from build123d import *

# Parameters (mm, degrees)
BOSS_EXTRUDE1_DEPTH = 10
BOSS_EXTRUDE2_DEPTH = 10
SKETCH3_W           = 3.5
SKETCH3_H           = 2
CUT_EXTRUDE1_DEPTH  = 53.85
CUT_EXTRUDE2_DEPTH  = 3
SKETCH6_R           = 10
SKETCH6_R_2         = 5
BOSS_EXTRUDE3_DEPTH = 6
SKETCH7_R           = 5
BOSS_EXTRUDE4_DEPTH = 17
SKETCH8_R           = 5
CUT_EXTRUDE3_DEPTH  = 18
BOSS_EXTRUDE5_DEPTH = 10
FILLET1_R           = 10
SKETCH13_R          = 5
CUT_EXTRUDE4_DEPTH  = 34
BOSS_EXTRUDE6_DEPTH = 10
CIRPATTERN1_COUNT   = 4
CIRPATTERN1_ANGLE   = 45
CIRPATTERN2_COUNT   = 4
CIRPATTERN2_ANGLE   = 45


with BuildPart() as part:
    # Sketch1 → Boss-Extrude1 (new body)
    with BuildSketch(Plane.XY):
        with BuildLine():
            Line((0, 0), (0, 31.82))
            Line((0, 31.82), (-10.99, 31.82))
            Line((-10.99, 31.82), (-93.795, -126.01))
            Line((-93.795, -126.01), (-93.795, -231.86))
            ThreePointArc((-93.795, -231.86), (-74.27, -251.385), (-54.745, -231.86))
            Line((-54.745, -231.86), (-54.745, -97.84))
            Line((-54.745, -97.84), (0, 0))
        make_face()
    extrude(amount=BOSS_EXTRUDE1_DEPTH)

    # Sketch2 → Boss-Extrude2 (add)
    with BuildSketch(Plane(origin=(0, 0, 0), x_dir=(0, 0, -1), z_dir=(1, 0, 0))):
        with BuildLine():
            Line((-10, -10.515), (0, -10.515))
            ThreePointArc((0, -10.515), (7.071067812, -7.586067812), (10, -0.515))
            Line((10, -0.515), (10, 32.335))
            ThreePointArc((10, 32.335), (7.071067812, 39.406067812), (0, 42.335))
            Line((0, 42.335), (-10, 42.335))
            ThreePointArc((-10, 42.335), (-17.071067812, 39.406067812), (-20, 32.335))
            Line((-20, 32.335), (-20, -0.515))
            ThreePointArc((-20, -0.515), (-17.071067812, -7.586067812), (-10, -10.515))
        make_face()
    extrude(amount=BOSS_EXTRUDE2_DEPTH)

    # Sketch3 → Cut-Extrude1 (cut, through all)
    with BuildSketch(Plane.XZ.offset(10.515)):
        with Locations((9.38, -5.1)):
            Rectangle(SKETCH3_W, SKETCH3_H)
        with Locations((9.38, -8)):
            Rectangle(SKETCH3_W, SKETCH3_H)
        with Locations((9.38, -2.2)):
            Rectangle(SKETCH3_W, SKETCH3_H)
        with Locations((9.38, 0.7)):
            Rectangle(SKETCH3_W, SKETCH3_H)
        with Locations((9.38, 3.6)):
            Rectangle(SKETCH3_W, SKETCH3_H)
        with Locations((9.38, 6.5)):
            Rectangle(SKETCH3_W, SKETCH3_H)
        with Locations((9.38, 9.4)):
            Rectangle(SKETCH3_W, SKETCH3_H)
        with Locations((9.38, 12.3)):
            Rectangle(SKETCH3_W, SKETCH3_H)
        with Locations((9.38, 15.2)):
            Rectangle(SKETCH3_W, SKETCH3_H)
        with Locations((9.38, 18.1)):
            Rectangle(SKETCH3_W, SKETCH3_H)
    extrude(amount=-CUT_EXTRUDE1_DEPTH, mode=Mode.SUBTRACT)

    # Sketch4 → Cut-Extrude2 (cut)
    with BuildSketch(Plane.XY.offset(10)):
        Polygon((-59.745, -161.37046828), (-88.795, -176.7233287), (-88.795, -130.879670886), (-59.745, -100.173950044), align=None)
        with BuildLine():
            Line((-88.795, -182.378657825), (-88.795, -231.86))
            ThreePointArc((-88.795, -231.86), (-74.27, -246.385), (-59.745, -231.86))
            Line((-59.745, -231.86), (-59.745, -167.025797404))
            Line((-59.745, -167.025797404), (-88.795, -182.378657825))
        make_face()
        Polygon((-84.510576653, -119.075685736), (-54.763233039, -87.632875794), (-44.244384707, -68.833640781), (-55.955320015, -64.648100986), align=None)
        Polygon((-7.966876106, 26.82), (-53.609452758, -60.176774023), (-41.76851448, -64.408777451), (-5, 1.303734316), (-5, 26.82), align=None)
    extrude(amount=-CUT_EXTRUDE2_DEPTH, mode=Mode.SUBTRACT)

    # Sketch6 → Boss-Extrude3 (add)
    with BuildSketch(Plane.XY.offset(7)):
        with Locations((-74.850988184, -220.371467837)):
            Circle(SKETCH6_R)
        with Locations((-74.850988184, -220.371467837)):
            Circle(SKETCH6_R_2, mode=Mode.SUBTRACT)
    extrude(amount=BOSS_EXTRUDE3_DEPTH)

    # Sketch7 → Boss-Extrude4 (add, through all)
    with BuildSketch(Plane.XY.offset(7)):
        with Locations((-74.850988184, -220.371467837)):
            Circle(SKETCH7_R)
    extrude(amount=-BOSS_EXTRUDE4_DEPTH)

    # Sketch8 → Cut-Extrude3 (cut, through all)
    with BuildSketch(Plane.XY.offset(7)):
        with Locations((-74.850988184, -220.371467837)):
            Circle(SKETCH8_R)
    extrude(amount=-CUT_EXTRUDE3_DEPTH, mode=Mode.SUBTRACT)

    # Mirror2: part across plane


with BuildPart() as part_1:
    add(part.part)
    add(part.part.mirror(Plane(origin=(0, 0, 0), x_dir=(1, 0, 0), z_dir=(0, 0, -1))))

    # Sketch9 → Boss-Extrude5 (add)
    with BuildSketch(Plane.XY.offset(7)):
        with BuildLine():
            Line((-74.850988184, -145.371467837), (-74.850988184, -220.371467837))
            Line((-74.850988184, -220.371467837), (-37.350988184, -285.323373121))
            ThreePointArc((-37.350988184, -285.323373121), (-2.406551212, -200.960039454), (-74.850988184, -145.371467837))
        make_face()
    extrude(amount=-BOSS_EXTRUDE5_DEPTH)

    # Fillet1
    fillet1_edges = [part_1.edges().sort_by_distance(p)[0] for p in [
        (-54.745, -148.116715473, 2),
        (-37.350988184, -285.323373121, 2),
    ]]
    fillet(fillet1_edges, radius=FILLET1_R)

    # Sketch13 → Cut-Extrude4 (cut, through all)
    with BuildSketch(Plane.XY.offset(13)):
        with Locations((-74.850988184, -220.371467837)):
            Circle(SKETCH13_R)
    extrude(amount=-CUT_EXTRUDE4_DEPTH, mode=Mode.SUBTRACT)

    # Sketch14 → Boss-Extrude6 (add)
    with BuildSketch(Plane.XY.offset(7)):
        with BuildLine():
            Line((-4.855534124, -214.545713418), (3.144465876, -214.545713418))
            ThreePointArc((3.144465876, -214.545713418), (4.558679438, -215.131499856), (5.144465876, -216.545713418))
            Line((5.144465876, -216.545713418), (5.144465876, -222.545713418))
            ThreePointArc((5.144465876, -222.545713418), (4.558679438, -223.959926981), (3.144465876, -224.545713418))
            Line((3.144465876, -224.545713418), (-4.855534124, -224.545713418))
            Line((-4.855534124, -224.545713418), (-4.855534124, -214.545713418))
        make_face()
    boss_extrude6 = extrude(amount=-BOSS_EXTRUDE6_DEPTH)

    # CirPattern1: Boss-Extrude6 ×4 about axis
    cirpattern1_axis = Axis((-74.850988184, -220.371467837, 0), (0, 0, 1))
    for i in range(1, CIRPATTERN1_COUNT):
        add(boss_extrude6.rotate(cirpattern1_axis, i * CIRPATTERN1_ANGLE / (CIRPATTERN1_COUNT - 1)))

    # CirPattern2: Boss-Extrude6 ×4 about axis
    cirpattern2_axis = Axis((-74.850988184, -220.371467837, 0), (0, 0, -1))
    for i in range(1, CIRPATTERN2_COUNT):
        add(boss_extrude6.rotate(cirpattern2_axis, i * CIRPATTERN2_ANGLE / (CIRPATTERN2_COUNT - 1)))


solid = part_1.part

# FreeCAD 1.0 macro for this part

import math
import FreeCAD as App
import Part
import Sketcher
Q = App.Units.Quantity


def edges_at(feature, points):
    """Names of the edges that pass closest to the given points."""
    edges = feature.Shape.Edges
    near = lambda p: min(range(len(edges)), key=lambda i: edges[i].distToShape(Part.Vertex(*p))[0])
    return sorted({f"Edge{near(p) + 1}" for p in points})


def add_polygon(sketch, points):
    """Adds a closed chain of lines whose ends are joined by coincident constraints."""
    first, n = sketch.GeometryCount, len(points)
    for a, b in zip(points, points[1:] + points[:1]):
        sketch.addGeometry(Part.LineSegment(App.Vector(*a, 0), App.Vector(*b, 0)), False)
    for i in range(n):
        sketch.addConstraint(Sketcher.Constraint("Coincident", first + i, 2, first + (i + 1) % n, 1))

doc = App.newDocument("Part")
body = doc.addObject("PartDesign::Body", "Body")

# Sketch on XY plane
sketch1 = body.newObject("Sketcher::SketchObject", "Sketch")
sketch1.AttachmentSupport = (doc.getObject("XY_Plane"), [""])
sketch1.MapMode = "FlatFace"
sketch1.addGeometry([
    Part.LineSegment(App.Vector(0, 0, 0), App.Vector(0, 32, 0)),  # 0
    Part.LineSegment(App.Vector(0, 32, 0), App.Vector(-11, 32, 0)),  # 1
    Part.LineSegment(App.Vector(-11, 32, 0), App.Vector(-94, -126, 0)),  # 2
    Part.LineSegment(App.Vector(-94, -126, 0), App.Vector(-94, -232, 0)),  # 3
    Part.ArcOfCircle(Part.Circle(App.Vector(-74, -232, 0), App.Vector(0, 0, 1), 20), math.radians(180), math.radians(360)),  # 4
    Part.LineSegment(App.Vector(-55, -232, 0), App.Vector(-55, -98, 0)),  # 5
    Part.LineSegment(App.Vector(-55, -98, 0), App.Vector(0, 0, 0)),  # 6
], False)
sketch1.addConstraint([
    Sketcher.Constraint("Coincident", 0, 2, 1, 1),
    Sketcher.Constraint("Coincident", 1, 2, 2, 1),
    Sketcher.Constraint("Coincident", 2, 2, 3, 1),
    Sketcher.Constraint("Tangent", 3, 2, 4, 1),
    Sketcher.Constraint("Tangent", 4, 2, 5, 1),
    Sketcher.Constraint("Coincident", 5, 2, 6, 1),
    Sketcher.Constraint("Coincident", 6, 2, 0, 1),
    Sketcher.Constraint("Vertical", 0),
    Sketcher.Constraint("Horizontal", 1),
    Sketcher.Constraint("Vertical", 3),
    Sketcher.Constraint("Vertical", 5),
    Sketcher.Constraint("Coincident", 6, 2, -1, 1),
    Sketcher.Constraint("Radius", 4, 19.525),
    Sketcher.Constraint("DistanceX", 1, 2, 1, 1, 10.99),
    Sketcher.Constraint("DistanceY", 0, 1, 0, 2, 31.82),
    Sketcher.Constraint("DistanceY", 3, 2, 3, 1, 105.85),
    Sketcher.Constraint("DistanceY", 5, 1, 5, 2, 134.02),
    Sketcher.Constraint("DistanceX", 4, 3, -1, 1, 74.27),
    Sketcher.Constraint("DistanceY", 4, 3, -1, 1, 231.86),
])
pad1 = body.newObject("PartDesign::Pad", "Pad")
pad1.Profile = sketch1
pad1.Length = 10

# Sketch on YZ plane
sketch2 = body.newObject("Sketcher::SketchObject", "Sketch001")
sketch2.AttachmentSupport = (doc.getObject("YZ_Plane"), [""])
sketch2.MapMode = "FlatFace"
sketch2.addGeometry([
    Part.LineSegment(App.Vector(-11, 10, 0), App.Vector(-11, 0, 0)),  # 0
    Part.ArcOfCircle(Part.Circle(App.Vector(-1, 0, 0), App.Vector(0, 0, 1), 10), math.radians(180), math.radians(270)),  # 1
    Part.LineSegment(App.Vector(-1, -10, 0), App.Vector(32, -10, 0)),  # 2
    Part.ArcOfCircle(Part.Circle(App.Vector(32, 0, 0), App.Vector(0, 0, 1), 10), math.radians(-90), math.radians(0)),  # 3
    Part.LineSegment(App.Vector(42, 0, 0), App.Vector(42, 10, 0)),  # 4
    Part.ArcOfCircle(Part.Circle(App.Vector(32, 10, 0), App.Vector(0, 0, 1), 10), math.radians(0), math.radians(90)),  # 5
    Part.LineSegment(App.Vector(32, 20, 0), App.Vector(-1, 20, 0)),  # 6
    Part.ArcOfCircle(Part.Circle(App.Vector(-1, 10, 0), App.Vector(0, 0, 1), 10), math.radians(90), math.radians(180)),  # 7
], False)
sketch2.addConstraint([
    Sketcher.Constraint("Tangent", 0, 2, 1, 1),
    Sketcher.Constraint("Tangent", 1, 2, 2, 1),
    Sketcher.Constraint("Tangent", 2, 2, 3, 1),
    Sketcher.Constraint("Tangent", 3, 2, 4, 1),
    Sketcher.Constraint("Tangent", 4, 2, 5, 1),
    Sketcher.Constraint("Tangent", 5, 2, 6, 1),
    Sketcher.Constraint("Tangent", 6, 2, 7, 1),
    Sketcher.Constraint("Tangent", 7, 2, 0, 1),
    Sketcher.Constraint("Vertical", 0),
    Sketcher.Constraint("Horizontal", 2),
    Sketcher.Constraint("Vertical", 4),
    Sketcher.Constraint("Horizontal", 6),
    Sketcher.Constraint("Equal", 1, 3),
    Sketcher.Constraint("Equal", 3, 5),
    Sketcher.Constraint("Equal", 5, 7),
    Sketcher.Constraint("PointOnObject", 1, 3, -1),
    Sketcher.Constraint("Radius", 1, 10.0),
    Sketcher.Constraint("DistanceY", 0, 2, 0, 1, 10.0),
    Sketcher.Constraint("DistanceX", 2, 1, 2, 2, 32.85),
    Sketcher.Constraint("DistanceX", 1, 3, -1, 1, 0.515),
])
pad2 = body.newObject("PartDesign::Pad", "Pad001")
pad2.Profile = sketch2
pad2.Length = 10

# Sketch on XZ plane
sketch3 = body.newObject("Sketcher::SketchObject", "Sketch002")
sketch3.AttachmentSupport = (doc.getObject("XZ_Plane"), [""])
sketch3.MapMode = "FlatFace"
sketch3.AttachmentOffset = App.Placement(App.Vector(0, 0, 10.515), App.Rotation())
add_polygon(sketch3, [(7.6, -4.1), (7.6, -6.1), (11.1, -6.1), (11.1, -4.1)])  # lines 0-3
add_polygon(sketch3, [(7.6, -7), (7.6, -9), (11.1, -9), (11.1, -7)])  # lines 4-7
add_polygon(sketch3, [(7.6, -1.2), (7.6, -3.2), (11.1, -3.2), (11.1, -1.2)])  # lines 8-11
add_polygon(sketch3, [(7.6, 1.7), (7.6, -0.3), (11.1, -0.3), (11.1, 1.7)])  # lines 12-15
add_polygon(sketch3, [(7.6, 4.6), (7.6, 2.6), (11.1, 2.6), (11.1, 4.6)])  # lines 16-19
add_polygon(sketch3, [(7.6, 7.5), (7.6, 5.5), (11.1, 5.5), (11.1, 7.5)])  # lines 20-23
add_polygon(sketch3, [(7.6, 10.4), (7.6, 8.4), (11.1, 8.4), (11.1, 10.4)])  # lines 24-27
add_polygon(sketch3, [(7.6, 13.3), (7.6, 11.3), (11.1, 11.3), (11.1, 13.3)])  # lines 28-31
add_polygon(sketch3, [(7.6, 16.2), (7.6, 14.2), (11.1, 14.2), (11.1, 16.2)])  # lines 32-35
add_polygon(sketch3, [(7.6, 19.1), (7.6, 17.1), (11.1, 17.1), (11.1, 19.1)])  # lines 36-39
sketch3.addConstraint([
    Sketcher.Constraint("Vertical", 0),
    Sketcher.Constraint("Horizontal", 1),
    Sketcher.Constraint("Vertical", 2),
    Sketcher.Constraint("Horizontal", 3),
    Sketcher.Constraint("Vertical", 4),
    Sketcher.Constraint("Horizontal", 5),
    Sketcher.Constraint("Vertical", 6),
    Sketcher.Constraint("Horizontal", 7),
    Sketcher.Constraint("Vertical", 8),
    Sketcher.Constraint("Horizontal", 9),
    Sketcher.Constraint("Vertical", 10),
    Sketcher.Constraint("Horizontal", 11),
    Sketcher.Constraint("Vertical", 12),
    Sketcher.Constraint("Horizontal", 13),
    Sketcher.Constraint("Vertical", 14),
    Sketcher.Constraint("Horizontal", 15),
    Sketcher.Constraint("Vertical", 16),
    Sketcher.Constraint("Horizontal", 17),
    Sketcher.Constraint("Vertical", 18),
    Sketcher.Constraint("Horizontal", 19),
    Sketcher.Constraint("Vertical", 20),
    Sketcher.Constraint("Horizontal", 21),
    Sketcher.Constraint("Vertical", 22),
    Sketcher.Constraint("Horizontal", 23),
    Sketcher.Constraint("Vertical", 24),
    Sketcher.Constraint("Horizontal", 25),
    Sketcher.Constraint("Vertical", 26),
    Sketcher.Constraint("Horizontal", 27),
    Sketcher.Constraint("Vertical", 28),
    Sketcher.Constraint("Horizontal", 29),
    Sketcher.Constraint("Vertical", 30),
    Sketcher.Constraint("Horizontal", 31),
    Sketcher.Constraint("Vertical", 32),
    Sketcher.Constraint("Horizontal", 33),
    Sketcher.Constraint("Vertical", 34),
    Sketcher.Constraint("Horizontal", 35),
    Sketcher.Constraint("Vertical", 36),
    Sketcher.Constraint("Horizontal", 37),
    Sketcher.Constraint("Vertical", 38),
    Sketcher.Constraint("Horizontal", 39),
    Sketcher.Constraint("Vertical", 3, 2, 4, 2),
    Sketcher.Constraint("Vertical", 2, 2, 5, 2),
    Sketcher.Constraint("Vertical", 7, 2, 8, 2),
    Sketcher.Constraint("Vertical", 6, 2, 9, 2),
    Sketcher.Constraint("Vertical", 11, 2, 12, 2),
    Sketcher.Constraint("Vertical", 10, 2, 13, 2),
    Sketcher.Constraint("Vertical", 15, 2, 16, 2),
    Sketcher.Constraint("Vertical", 14, 2, 17, 2),
    Sketcher.Constraint("Vertical", 19, 2, 20, 2),
    Sketcher.Constraint("Vertical", 18, 2, 21, 2),
    Sketcher.Constraint("Vertical", 23, 2, 24, 2),
    Sketcher.Constraint("Vertical", 22, 2, 25, 2),
    Sketcher.Constraint("Vertical", 27, 2, 28, 2),
    Sketcher.Constraint("Vertical", 26, 2, 29, 2),
    Sketcher.Constraint("Vertical", 31, 2, 32, 2),
    Sketcher.Constraint("Vertical", 30, 2, 33, 2),
    Sketcher.Constraint("Vertical", 35, 2, 36, 2),
    Sketcher.Constraint("Vertical", 34, 2, 37, 2),
    Sketcher.Constraint("Equal", 2, 4),
    Sketcher.Constraint("Equal", 6, 8),
    Sketcher.Constraint("Equal", 10, 12),
    Sketcher.Constraint("Equal", 14, 16),
    Sketcher.Constraint("Equal", 18, 20),
    Sketcher.Constraint("Equal", 22, 24),
    Sketcher.Constraint("Equal", 26, 28),
    Sketcher.Constraint("Equal", 30, 32),
    Sketcher.Constraint("Equal", 34, 36),
    Sketcher.Constraint("DistanceY", 0, 2, 0, 1, 2.0),
    Sketcher.Constraint("DistanceX", 1, 1, 1, 2, 3.5),
    Sketcher.Constraint("DistanceY", 4, 2, -1, 1, 9.0),
    Sketcher.Constraint("DistanceY", 0, 2, -1, 1, 6.1),
    Sketcher.Constraint("DistanceY", 8, 2, -1, 1, 3.2),
    Sketcher.Constraint("DistanceY", 12, 2, -1, 1, 0.3),
    Sketcher.Constraint("DistanceY", -1, 1, 16, 2, 2.6),
    Sketcher.Constraint("DistanceY", -1, 1, 20, 2, 5.5),
    Sketcher.Constraint("DistanceY", -1, 1, 24, 2, 8.4),
    Sketcher.Constraint("DistanceY", -1, 1, 28, 2, 11.3),
    Sketcher.Constraint("DistanceY", -1, 1, 32, 2, 14.2),
    Sketcher.Constraint("DistanceY", -1, 1, 36, 2, 17.1),
    Sketcher.Constraint("DistanceX", -1, 1, 0, 2, 7.63),
])
pocket1 = body.newObject("PartDesign::Pocket", "Pocket")
pocket1.Profile = sketch3
pocket1.Type = "ThroughAll"

# Sketch on XY plane
sketch4 = body.newObject("Sketcher::SketchObject", "Sketch003")
sketch4.AttachmentSupport = (doc.getObject("XY_Plane"), [""])
sketch4.MapMode = "FlatFace"
sketch4.AttachmentOffset = App.Placement(App.Vector(0, 0, 10), App.Rotation())
add_polygon(sketch4, [(-88.8, -176.7), (-59.7, -161.4), (-59.7, -100.2), (-88.8, -130.9)])  # lines 0-3
sketch4.addGeometry(Part.LineSegment(App.Vector(-88.8, -182.4, 0), App.Vector(-88.8, -231.9, 0)), False)  # 4
sketch4.addGeometry(Part.ArcOfCircle(Part.Circle(App.Vector(-74.3, -231.9, 0), App.Vector(0, 0, 1), 14.5), math.radians(180), math.radians(360)), False)  # 5
sketch4.addGeometry(Part.LineSegment(App.Vector(-59.7, -231.9, 0), App.Vector(-59.7, -167, 0)), False)  # 6
sketch4.addGeometry(Part.LineSegment(App.Vector(-59.7, -167, 0), App.Vector(-88.8, -182.4, 0)), False)  # 7
add_polygon(sketch4, [(-84.5, -119.1), (-54.8, -87.6), (-44.2, -68.8), (-56, -64.6)])  # lines 8-11
add_polygon(sketch4, [(-8, 26.8), (-53.6, -60.2), (-41.8, -64.4), (-5, 1.3), (-5, 26.8)])  # lines 12-16
sketch4.addConstraint([
    Sketcher.Constraint("Tangent", 4, 2, 5, 1),
    Sketcher.Constraint("Tangent", 5, 2, 6, 1),
    Sketcher.Constraint("Coincident", 6, 2, 7, 1),
    Sketcher.Constraint("Coincident", 7, 2, 4, 1),
    Sketcher.Constraint("Vertical", 1),
    Sketcher.Constraint("Vertical", 3),
    Sketcher.Constraint("Vertical", 4),
    Sketcher.Constraint("Vertical", 6),
    Sketcher.Constraint("Vertical", 15),
    Sketcher.Constraint("Horizontal", 16),
    Sketcher.Constraint("Parallel", 0, 7),
    Sketcher.Constraint("Parallel", 2, 8),
    Sketcher.Constraint("Parallel", 11, 12),
    Sketcher.Constraint("Parallel", 10, 13),
    Sketcher.Constraint("Parallel", 9, 14),
    Sketcher.Constraint("Vertical", 3, 2, 4, 2),
    Sketcher.Constraint("Vertical", 1, 2, 5, 2),
    Sketcher.Constraint("DistanceX", 14, 2, -1, 1, 5.0),
    Sketcher.Constraint("Radius", 5, 14.525),
    Sketcher.Constraint("DistanceX", 5, 3, -1, 1, 74.27),
    Sketcher.Constraint("DistanceY", 5, 3, -1, 1, 231.86),
    Sketcher.Constraint("DistanceY", -1, 1, 15, 2, 26.82),
    Sketcher.Constraint("DistanceY", 1, 1, 1, 2, 61.196518),
    Sketcher.Constraint("DistanceY", 10, 2, -1, 1, 64.648101),
    Sketcher.Constraint("DistanceY", 8, 2, 12, 2, 27.456102),
    Sketcher.Constraint("DistanceY", 8, 2, 13, 2, 23.224098),
    Sketcher.Constraint("Distance", 8, 43.284579),
    Sketcher.Constraint("Distance", 9, 21.541992),
    Sketcher.Constraint("Distance", 10, 12.436428),
    Sketcher.Constraint("Distance", 12, 98.242982),
    Sketcher.Constraint("DistanceX", 16, 2, 16, 1, 2.966876),
    Sketcher.Constraint("DistanceY", 3, 2, 3, 1, 45.843658),
    Sketcher.Constraint("DistanceY", 4, 2, 4, 1, 49.481342),
    Sketcher.Constraint("DistanceY", 6, 1, 6, 2, 64.834203),
    Sketcher.Constraint("DistanceY", 15, 1, 15, 2, 25.516266),
    Sketcher.Constraint("DistanceY", 0, 2, -1, 1, 161.370468),
    Sketcher.Constraint("DistanceX", 10, 2, -1, 1, 55.95532),
])
pocket2 = body.newObject("PartDesign::Pocket", "Pocket001")
pocket2.Profile = sketch4
pocket2.Length = 3

# Sketch on XY plane
sketch5 = body.newObject("Sketcher::SketchObject", "Sketch004")
sketch5.AttachmentSupport = (doc.getObject("XY_Plane"), [""])
sketch5.MapMode = "FlatFace"
sketch5.AttachmentOffset = App.Placement(App.Vector(0, 0, 7), App.Rotation())
sketch5.addGeometry([
    Part.Circle(App.Vector(-75, -220, 0), App.Vector(0, 0, 1), 10),
    Part.Circle(App.Vector(-75, -220, 0), App.Vector(0, 0, 1), 5),
], False)
sketch5.addConstraint([
    Sketcher.Constraint("Coincident", 1, 3, 0, 3),
    Sketcher.Constraint("Diameter", 0, 20.0),
    Sketcher.Constraint("Diameter", 1, 10.0),
    Sketcher.Constraint("DistanceX", 0, 3, -1, 1, 74.850988),
    Sketcher.Constraint("DistanceY", 0, 3, -1, 1, 220.371468),
])
pad3 = body.newObject("PartDesign::Pad", "Pad002")
pad3.Profile = sketch5
pad3.Length = 6

# Sketch on XY plane
sketch6 = body.newObject("Sketcher::SketchObject", "Sketch005")
sketch6.AttachmentSupport = (doc.getObject("XY_Plane"), [""])
sketch6.MapMode = "FlatFace"
sketch6.AttachmentOffset = App.Placement(App.Vector(0, 0, 7), App.Rotation())
sketch6.addGeometry(Part.Circle(App.Vector(-75, -220, 0), App.Vector(0, 0, 1), 5), False)
sketch6.addConstraint([
    Sketcher.Constraint("Diameter", 0, 10.0),
    Sketcher.Constraint("DistanceX", 0, 3, -1, 1, 74.850988),
    Sketcher.Constraint("DistanceY", 0, 3, -1, 1, 220.371468),
])
pad4 = body.newObject("PartDesign::Pad", "Pad003")
pad4.Profile = sketch6
pad4.Length = 17
pad4.Reversed = True

# Sketch on XY plane
sketch7 = body.newObject("Sketcher::SketchObject", "Sketch006")
sketch7.AttachmentSupport = (doc.getObject("XY_Plane"), [""])
sketch7.MapMode = "FlatFace"
sketch7.AttachmentOffset = App.Placement(App.Vector(0, 0, 7), App.Rotation())
sketch7.addGeometry(Part.Circle(App.Vector(-75, -220, 0), App.Vector(0, 0, 1), 5), False)
sketch7.addConstraint([
    Sketcher.Constraint("Diameter", 0, 10.0),
    Sketcher.Constraint("DistanceX", 0, 3, -1, 1, 74.850988),
    Sketcher.Constraint("DistanceY", 0, 3, -1, 1, 220.371468),
])
pocket3 = body.newObject("PartDesign::Pocket", "Pocket002")
pocket3.Profile = sketch7
pocket3.Type = "ThroughAll"
body2 = doc.addObject("PartDesign::Body", "Body001")
doc.recompute()

body2.BaseFeature = body
doc.recompute()

mirroring = doc.addObject("Part::Mirroring", "Mirroring")
mirroring.Source = body
mirroring.Base = App.Vector(0, 0, 0)
mirroring.Normal = App.Vector(0, 0, -1)
body3 = doc.addObject("PartDesign::Body", "Body002")
body3.BaseFeature = mirroring
boolean = body2.newObject("PartDesign::Boolean", "Boolean")
boolean.Type = "Fuse"
boolean.addObjects([body3])
doc.recompute()

# Sketch on XY plane
sketch8 = body2.newObject("Sketcher::SketchObject", "Sketch007")
sketch8.AttachmentSupport = (doc.getObject("XY_Plane001"), [""])
sketch8.MapMode = "FlatFace"
sketch8.AttachmentOffset = App.Placement(App.Vector(0, 0, 7), App.Rotation())
sketch8.addGeometry([
    Part.LineSegment(App.Vector(-75, -145, 0), App.Vector(-75, -220, 0)),
    Part.LineSegment(App.Vector(-75, -220, 0), App.Vector(-37, -285, 0)),
    Part.ArcOfCircle(Part.Circle(App.Vector(-75, -220, 0), App.Vector(0, 0, 1), 75), math.radians(-60), math.radians(90)),
], False)
sketch8.addConstraint([
    Sketcher.Constraint("Coincident", 0, 2, 1, 1),
    Sketcher.Constraint("Coincident", 1, 2, 2, 1),
    Sketcher.Constraint("Coincident", 2, 2, 0, 1),
    Sketcher.Constraint("Vertical", 0),
    Sketcher.Constraint("Coincident", 0, 2, 2, 3),
    Sketcher.Constraint("Radius", 2, 75.0),
    Sketcher.Constraint("Angle", 1, Q("-60 deg")),
    Sketcher.Constraint("DistanceX", 2, 3, -1, 1, 74.850988),
    Sketcher.Constraint("DistanceY", 2, 3, -1, 1, 220.371468),
])
pad5 = body2.newObject("PartDesign::Pad", "Pad004")
pad5.Profile = sketch8
pad5.Length = 10
pad5.Reversed = True
doc.recompute()

fillet = body2.newObject("PartDesign::Fillet", "Fillet")
fillet.Base = (pad5, edges_at(pad5, [(-54.745, -148.117, 2), (-37.351, -285.323, 2)]))
fillet.Radius = 10

# Sketch on XY plane
sketch9 = body2.newObject("Sketcher::SketchObject", "Sketch008")
sketch9.AttachmentSupport = (doc.getObject("XY_Plane001"), [""])
sketch9.MapMode = "FlatFace"
sketch9.AttachmentOffset = App.Placement(App.Vector(0, 0, 13), App.Rotation())
sketch9.addGeometry(Part.Circle(App.Vector(-75, -220, 0), App.Vector(0, 0, 1), 5), False)
sketch9.addConstraint([
    Sketcher.Constraint("Diameter", 0, 10.0),
    Sketcher.Constraint("DistanceX", 0, 3, -1, 1, 74.850988),
    Sketcher.Constraint("DistanceY", 0, 3, -1, 1, 220.371468),
])
pocket4 = body2.newObject("PartDesign::Pocket", "Pocket003")
pocket4.Profile = sketch9
pocket4.Type = "ThroughAll"

# Sketch on XY plane
sketch10 = body2.newObject("Sketcher::SketchObject", "Sketch009")
sketch10.AttachmentSupport = (doc.getObject("XY_Plane001"), [""])
sketch10.MapMode = "FlatFace"
sketch10.AttachmentOffset = App.Placement(App.Vector(0, 0, 7), App.Rotation())
sketch10.addGeometry([
    Part.LineSegment(App.Vector(3.1, -214.5, 0), App.Vector(-4.9, -214.5, 0)),  # 0
    Part.LineSegment(App.Vector(-4.9, -214.5, 0), App.Vector(-4.9, -224.5, 0)),  # 1
    Part.LineSegment(App.Vector(-4.9, -224.5, 0), App.Vector(3.1, -224.5, 0)),  # 2
    Part.ArcOfCircle(Part.Circle(App.Vector(3.1, -222.5, 0), App.Vector(0, 0, 1), 2), math.radians(-90), math.radians(0)),  # 3
    Part.LineSegment(App.Vector(5.1, -222.5, 0), App.Vector(5.1, -216.5, 0)),  # 4
    Part.ArcOfCircle(Part.Circle(App.Vector(3.1, -216.5, 0), App.Vector(0, 0, 1), 2), math.radians(0), math.radians(90)),  # 5
], False)
sketch10.addConstraint([
    Sketcher.Constraint("Coincident", 0, 2, 1, 1),
    Sketcher.Constraint("Coincident", 1, 2, 2, 1),
    Sketcher.Constraint("Tangent", 2, 2, 3, 1),
    Sketcher.Constraint("Tangent", 3, 2, 4, 1),
    Sketcher.Constraint("Tangent", 4, 2, 5, 1),
    Sketcher.Constraint("Tangent", 5, 2, 0, 1),
    Sketcher.Constraint("Horizontal", 0),
    Sketcher.Constraint("Vertical", 1),
    Sketcher.Constraint("Horizontal", 2),
    Sketcher.Constraint("Vertical", 4),
    Sketcher.Constraint("Equal", 3, 5),
    Sketcher.Constraint("Radius", 3, 2.0),
    Sketcher.Constraint("DistanceX", 0, 2, 0, 1, 8.0),
    Sketcher.Constraint("DistanceY", 1, 2, 1, 1, 10.0),
    Sketcher.Constraint("DistanceX", -1, 1, 3, 3, 3.144466),
    Sketcher.Constraint("DistanceY", 3, 3, -1, 1, 222.545713),
])
pad6 = body2.newObject("PartDesign::Pad", "Pad005")
pad6.Profile = sketch10
pad6.Length = 10
pad6.Reversed = True
doc.recompute()

datumline = body2.newObject("PartDesign::Line", "DatumLine")
datumline.Placement = App.Placement(App.Vector(-74.850988, -220.371468, 0), App.Rotation(App.Vector(0, 0, 1), App.Vector(0, 0, 1)))
polarpattern = body2.newObject("PartDesign::PolarPattern", "PolarPattern")
polarpattern.Originals = [pad6]
polarpattern.Axis = (datumline, [""])
polarpattern.Angle = 45
polarpattern.Occurrences = 4
body2.Tip = polarpattern
doc.recompute()

datumline2 = body2.newObject("PartDesign::Line", "DatumLine001")
datumline2.Placement = App.Placement(App.Vector(-74.850988, -220.371468, 0), App.Rotation(App.Vector(0, 0, 1), App.Vector(0, 0, -1)))
polarpattern2 = body2.newObject("PartDesign::PolarPattern", "PolarPattern001")
polarpattern2.Originals = [pad6]
polarpattern2.Axis = (datumline2, [""])
polarpattern2.Angle = 45
polarpattern2.Occurrences = 4
body2.Tip = polarpattern2
mirroring.Visibility = False

doc.recompute()
